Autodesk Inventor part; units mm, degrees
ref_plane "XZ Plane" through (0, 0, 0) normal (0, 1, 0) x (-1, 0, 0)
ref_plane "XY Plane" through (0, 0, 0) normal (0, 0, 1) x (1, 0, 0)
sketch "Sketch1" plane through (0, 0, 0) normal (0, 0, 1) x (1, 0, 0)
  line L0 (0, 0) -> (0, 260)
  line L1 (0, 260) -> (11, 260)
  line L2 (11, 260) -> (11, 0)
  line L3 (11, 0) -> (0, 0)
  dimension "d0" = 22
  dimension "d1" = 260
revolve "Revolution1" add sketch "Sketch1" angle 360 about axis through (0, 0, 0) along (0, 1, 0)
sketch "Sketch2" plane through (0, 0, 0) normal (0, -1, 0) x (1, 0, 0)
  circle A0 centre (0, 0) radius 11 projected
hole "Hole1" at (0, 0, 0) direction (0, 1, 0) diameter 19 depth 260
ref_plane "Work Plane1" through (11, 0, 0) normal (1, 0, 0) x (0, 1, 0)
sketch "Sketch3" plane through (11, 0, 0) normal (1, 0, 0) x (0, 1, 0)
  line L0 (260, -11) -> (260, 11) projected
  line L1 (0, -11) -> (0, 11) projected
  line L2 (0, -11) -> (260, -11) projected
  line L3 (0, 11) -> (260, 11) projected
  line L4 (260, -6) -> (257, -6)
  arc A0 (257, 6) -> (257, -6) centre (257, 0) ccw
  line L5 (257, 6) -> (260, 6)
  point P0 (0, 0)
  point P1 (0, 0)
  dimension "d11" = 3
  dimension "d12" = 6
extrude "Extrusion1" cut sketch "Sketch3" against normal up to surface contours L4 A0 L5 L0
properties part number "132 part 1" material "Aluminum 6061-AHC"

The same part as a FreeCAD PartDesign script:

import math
import FreeCAD as App
import Part
import Sketcher
from FreeCAD import Vector

doc = App.newDocument("Part")
body = doc.addObject("PartDesign::Body", "Body")

sketch1 = body.newObject("Sketcher::SketchObject", "Sketch")
sketch1.AttachmentSupport = (doc.getObject("XY_Plane"), [""])
sketch1.MapMode = "FlatFace"
sketch1.addGeometry([
    Part.LineSegment(Vector(0, 260, 0), Vector(0, 0, 0)),
    Part.LineSegment(Vector(0, 0, 0), Vector(11, 0, 0)),
    Part.LineSegment(Vector(11, 0, 0), Vector(11, 260, 0)),
    Part.LineSegment(Vector(11, 260, 0), Vector(0, 260, 0)),
], False)
sketch1.addConstraint([
    Sketcher.Constraint("Coincident", 0, 2, 1, 1),
    Sketcher.Constraint("Coincident", 1, 2, 2, 1),
    Sketcher.Constraint("Coincident", 2, 2, 3, 1),
    Sketcher.Constraint("Coincident", 3, 2, 0, 1),
    Sketcher.Constraint("Vertical", 0),
    Sketcher.Constraint("Horizontal", 1),
    Sketcher.Constraint("Vertical", 2),
    Sketcher.Constraint("Horizontal", 3),
    Sketcher.Constraint("Coincident", 0, 2, -1, 1),
    Sketcher.Constraint("DistanceY", 0, 2, 0, 1, 260.0),
    Sketcher.Constraint("DistanceX", 1, 1, 1, 2, 11.0),
])
revolution = body.newObject("PartDesign::Revolution", "Revolution")
revolution.Profile = sketch1
revolution.ReferenceAxis = (sketch1, ["V_Axis"])
revolution.Angle = 360

sketch2 = body.newObject("Sketcher::SketchObject", "Sketch001")
sketch2.AttachmentSupport = (doc.getObject("XZ_Plane"), [""])
sketch2.MapMode = "FlatFace"
sketch2.addGeometry(Part.Circle(Vector(0, 0, 0), Vector(0, 0, 1), 9.5), False)
sketch2.addConstraint([
    Sketcher.Constraint("Coincident", 0, 3, -1, 1),
    Sketcher.Constraint("Diameter", 0, 19.0),
])
doc.recompute()
hole = body.newObject("PartDesign::Hole", "Hole")
hole.Profile = sketch2
hole.ThreadType = "None"
hole.Diameter = 19
hole.DepthType = "Dimension"
hole.Depth = 260
hole.DrillPoint = "Flat"

sketch3 = body.newObject("Sketcher::SketchObject", "Sketch002")
sketch3.AttachmentSupport = (doc.getObject("YZ_Plane"), [""])
sketch3.MapMode = "FlatFace"
sketch3.AttachmentOffset = App.Placement(Vector(0, 0, 11), App.Rotation())
sketch3.addGeometry([
    Part.LineSegment(Vector(257, -6, 0), Vector(260, -6, 0)),
    Part.LineSegment(Vector(260, -6, 0), Vector(260, 6, 0)),
    Part.LineSegment(Vector(260, 6, 0), Vector(257, 6, 0)),
    Part.ArcOfCircle(Part.Circle(Vector(257, 0, 0), Vector(0, 0, 1), 6), math.radians(90), math.radians(270)),
], False)
sketch3.addConstraint([
    Sketcher.Constraint("Coincident", 0, 2, 1, 1),
    Sketcher.Constraint("Coincident", 1, 2, 2, 1),
    Sketcher.Constraint("Tangent", 2, 2, 3, 1),
    Sketcher.Constraint("Tangent", 3, 2, 0, 1),
    Sketcher.Constraint("Horizontal", 0),
    Sketcher.Constraint("Vertical", 1),
    Sketcher.Constraint("Horizontal", 2),
    Sketcher.Constraint("PointOnObject", 3, 3, -1),
    Sketcher.Constraint("Radius", 3, 6.0),
    Sketcher.Constraint("DistanceX", 0, 1, 0, 2, 3.0),
    Sketcher.Constraint("DistanceX", -1, 1, 3, 3, 257.0),
])
pocket1 = body.newObject("PartDesign::Pocket", "Pocket")
pocket1.Profile = sketch3
pocket1.Type = "UpToFirst"

doc.recompute()
